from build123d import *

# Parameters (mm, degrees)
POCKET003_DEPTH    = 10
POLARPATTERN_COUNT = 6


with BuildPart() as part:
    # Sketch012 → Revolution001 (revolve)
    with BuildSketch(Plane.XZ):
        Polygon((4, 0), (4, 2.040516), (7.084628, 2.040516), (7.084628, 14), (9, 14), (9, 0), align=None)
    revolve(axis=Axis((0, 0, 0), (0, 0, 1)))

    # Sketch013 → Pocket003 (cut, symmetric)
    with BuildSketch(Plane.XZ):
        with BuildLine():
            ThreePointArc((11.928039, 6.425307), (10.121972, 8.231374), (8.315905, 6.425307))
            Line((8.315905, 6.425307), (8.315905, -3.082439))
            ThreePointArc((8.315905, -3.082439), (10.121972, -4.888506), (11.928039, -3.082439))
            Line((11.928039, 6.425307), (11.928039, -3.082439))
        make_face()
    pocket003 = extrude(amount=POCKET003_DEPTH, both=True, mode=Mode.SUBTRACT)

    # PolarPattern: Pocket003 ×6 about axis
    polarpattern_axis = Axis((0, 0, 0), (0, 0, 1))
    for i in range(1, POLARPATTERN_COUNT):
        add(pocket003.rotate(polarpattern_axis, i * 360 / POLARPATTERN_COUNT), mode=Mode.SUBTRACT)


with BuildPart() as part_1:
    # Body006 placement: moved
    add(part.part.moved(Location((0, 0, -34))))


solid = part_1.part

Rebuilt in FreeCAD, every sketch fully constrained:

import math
import FreeCAD as App
import Part
import Sketcher

doc = App.newDocument("Part")
body = doc.addObject("PartDesign::Body", "Body")

# Sketch on XZ plane
sketch1 = doc.addObject("Sketcher::SketchObject", "Sketch")
body.addObject(sketch1)
sketch1.AttachmentSupport = (doc.XZ_Plane, [""])
sketch1.MapMode = "FlatFace"
sketch1.addGeometry([
    Part.LineSegment(App.Vector(4, 2.040516, 0), App.Vector(4, 0, 0)),  # 0
    Part.LineSegment(App.Vector(4, 0, 0), App.Vector(9, 0, 0)),  # 1
    Part.LineSegment(App.Vector(9, 0, 0), App.Vector(9, 14, 0)),  # 2
    Part.LineSegment(App.Vector(9, 14, 0), App.Vector(7.084628, 14, 0)),  # 3
    Part.LineSegment(App.Vector(7.084628, 14, 0), App.Vector(7.084628, 2.040516, 0)),  # 4
    Part.LineSegment(App.Vector(7.084628, 2.040516, 0), App.Vector(4, 2.040516, 0)),  # 5
], False)
sketch1.addConstraint([
    Sketcher.Constraint("Coincident", 0, 2, 1, 1),
    Sketcher.Constraint("Coincident", 1, 2, 2, 1),
    Sketcher.Constraint("Coincident", 2, 2, 3, 1),
    Sketcher.Constraint("Coincident", 3, 2, 4, 1),
    Sketcher.Constraint("Coincident", 4, 2, 5, 1),
    Sketcher.Constraint("Coincident", 5, 2, 0, 1),
    Sketcher.Constraint("Vertical", 0),
    Sketcher.Constraint("Horizontal", 1),
    Sketcher.Constraint("Vertical", 2),
    Sketcher.Constraint("Horizontal", 3),
    Sketcher.Constraint("Vertical", 4),
    Sketcher.Constraint("Horizontal", 5),
    Sketcher.Constraint("PointOnObject", 0, 2, -1),
    Sketcher.Constraint("DistanceX", 1, 1, 1, 2, 5.0),
    Sketcher.Constraint("DistanceY", 2, 1, 2, 2, 14.0),
    Sketcher.Constraint("DistanceX", -1, 1, 0, 2, 4.0),
    Sketcher.Constraint("DistanceX", 3, 2, 3, 1, 1.915372),
    Sketcher.Constraint("DistanceY", 0, 2, 0, 1, 2.040516),
])
revolution = doc.addObject("PartDesign::Revolution", "Revolution")
body.addObject(revolution)
revolution.Profile = sketch1
revolution.ReferenceAxis = (sketch1, ["V_Axis"])
revolution.Angle = 360

# Sketch on XZ plane
sketch2 = doc.addObject("Sketcher::SketchObject", "Sketch001")
body.addObject(sketch2)
sketch2.AttachmentSupport = (doc.XZ_Plane, [""])
sketch2.MapMode = "FlatFace"
sketch2.addGeometry([
    Part.ArcOfCircle(Part.Circle(App.Vector(10.121972, 6.425307, 0), App.Vector(0, 0, 1), 1.806067), math.radians(0), math.radians(180)),
    Part.LineSegment(App.Vector(8.315905, 6.425307, 0), App.Vector(8.315905, -3.082439, 0)),
    Part.ArcOfCircle(Part.Circle(App.Vector(10.121972, -3.082439, 0), App.Vector(0, 0, 1), 1.806067), math.radians(180), math.radians(360)),
    Part.LineSegment(App.Vector(11.928039, -3.082439, 0), App.Vector(11.928039, 6.425307, 0)),
], False)
sketch2.addConstraint([
    Sketcher.Constraint("Tangent", 0, 2, 1, 1),
    Sketcher.Constraint("Tangent", 1, 2, 2, 1),
    Sketcher.Constraint("Tangent", 2, 2, 3, 1),
    Sketcher.Constraint("Tangent", 3, 2, 0, 1),
    Sketcher.Constraint("Vertical", 1),
    Sketcher.Constraint("Vertical", 3),
    Sketcher.Constraint("Radius", 0, 1.806067),
    Sketcher.Constraint("DistanceY", 1, 2, 1, 1, 9.507746),
    Sketcher.Constraint("DistanceY", 2, 3, -1, 1, 3.082439),
    Sketcher.Constraint("DistanceX", -1, 1, 2, 2, 11.928039),
])
pocket1 = doc.addObject("PartDesign::Pocket", "Pocket")
body.addObject(pocket1)
pocket1.Profile = sketch2
pocket1.Length = 20
pocket1.Midplane = True
doc.recompute()

polarpattern = doc.addObject("PartDesign::PolarPattern", "PolarPattern")
body.addObject(polarpattern)
polarpattern.Originals = [pocket1]
polarpattern.Axis = (doc.Z_Axis, [""])
polarpattern.Angle = 360
polarpattern.Occurrences = 6
body.Tip = polarpattern
body2 = doc.addObject("PartDesign::Body", "Body001")
doc.recompute()

body.Placement = App.Placement(App.Vector(0, 0, -34), App.Rotation(App.Vector(0, 0, 1), 0))
boolean = doc.addObject("PartDesign::Boolean", "Boolean")
body2.addObject(boolean)
boolean.Type = "Fuse"
boolean.addObjects([body])

doc.recompute()
